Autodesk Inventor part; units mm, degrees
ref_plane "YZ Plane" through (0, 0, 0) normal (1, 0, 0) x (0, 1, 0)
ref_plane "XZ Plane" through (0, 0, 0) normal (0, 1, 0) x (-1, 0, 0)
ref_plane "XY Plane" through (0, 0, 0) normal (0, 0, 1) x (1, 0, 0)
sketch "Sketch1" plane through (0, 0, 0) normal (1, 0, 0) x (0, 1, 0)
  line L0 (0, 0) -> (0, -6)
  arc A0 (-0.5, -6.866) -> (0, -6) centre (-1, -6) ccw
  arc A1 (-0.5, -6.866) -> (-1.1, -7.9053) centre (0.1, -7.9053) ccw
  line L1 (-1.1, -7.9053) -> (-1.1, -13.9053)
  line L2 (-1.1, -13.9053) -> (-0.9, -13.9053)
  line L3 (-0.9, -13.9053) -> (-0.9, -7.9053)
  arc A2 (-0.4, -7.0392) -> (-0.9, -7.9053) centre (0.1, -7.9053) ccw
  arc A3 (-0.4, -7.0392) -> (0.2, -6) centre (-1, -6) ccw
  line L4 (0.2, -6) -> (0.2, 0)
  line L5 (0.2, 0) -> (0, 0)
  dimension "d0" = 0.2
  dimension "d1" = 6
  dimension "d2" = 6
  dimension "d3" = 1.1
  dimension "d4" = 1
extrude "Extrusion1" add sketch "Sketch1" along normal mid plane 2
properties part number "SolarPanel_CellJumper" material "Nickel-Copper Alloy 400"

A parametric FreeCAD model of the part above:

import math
import FreeCAD as App
import Part
import Sketcher
from FreeCAD import Vector
Q = App.Units.Quantity

doc = App.newDocument("Part")
body = doc.addObject("PartDesign::Body", "Body")

# Sketch on YZ plane
sketch1 = doc.addObject("Sketcher::SketchObject", "Sketch")
body.addObject(sketch1)
sketch1.AttachmentSupport = (doc.YZ_Plane, [""])
sketch1.MapMode = "FlatFace"
sketch1.addGeometry([
    Part.LineSegment(Vector(0.2, 0, 0), Vector(0, 0, 0)),  # 0
    Part.LineSegment(Vector(0, 0, 0), Vector(0, -6, 0)),  # 1
    Part.ArcOfCircle(Part.Circle(Vector(-1, -6, 0), Vector(0, 0, 1), 1), math.radians(-60), math.radians(0)),  # 2
    Part.ArcOfCircle(Part.Circle(Vector(0.1, -7.91, 0), Vector(0, 0, 1), 1.2), math.radians(120), math.radians(180)),  # 3
    Part.LineSegment(Vector(-1.1, -7.91, 0), Vector(-1.1, -13.91, 0)),  # 4
    Part.LineSegment(Vector(-1.1, -13.91, 0), Vector(-0.9, -13.91, 0)),  # 5
    Part.LineSegment(Vector(-0.9, -13.91, 0), Vector(-0.9, -7.91, 0)),  # 6
    Part.ArcOfCircle(Part.Circle(Vector(0.1, -7.91, 0), Vector(0, 0, 1), 1), math.radians(120), math.radians(180)),  # 7
    Part.ArcOfCircle(Part.Circle(Vector(-1, -6, 0), Vector(0, 0, 1), 1.2), math.radians(-60), math.radians(0)),  # 8
    Part.LineSegment(Vector(0.2, -6, 0), Vector(0.2, 0, 0)),  # 9
], False)
sketch1.addConstraint([
    Sketcher.Constraint("Coincident", 0, 2, 1, 1),
    Sketcher.Constraint("Tangent", 1, 2, 2, 2),
    Sketcher.Constraint("Tangent", 2, 1, 3, 1),
    Sketcher.Constraint("Tangent", 3, 2, 4, 1),
    Sketcher.Constraint("Coincident", 4, 2, 5, 1),
    Sketcher.Constraint("Coincident", 5, 2, 6, 1),
    Sketcher.Constraint("Tangent", 6, 2, 7, 2),
    Sketcher.Constraint("Tangent", 7, 1, 8, 1),
    Sketcher.Constraint("Tangent", 8, 2, 9, 1),
    Sketcher.Constraint("Coincident", 9, 2, 0, 1),
    Sketcher.Constraint("Horizontal", 0),
    Sketcher.Constraint("Vertical", 1),
    Sketcher.Constraint("Vertical", 4),
    Sketcher.Constraint("Horizontal", 5),
    Sketcher.Constraint("Vertical", 6),
    Sketcher.Constraint("Vertical", 9),
    Sketcher.Constraint("Coincident", 0, 2, -1, 1),
    Sketcher.Constraint("Coincident", 7, 3, 3, 3),
    Sketcher.Constraint("Coincident", 8, 3, 2, 3),
    Sketcher.Constraint("Equal", 2, 7),
    Sketcher.Constraint("Equal", 1, 4),
    Sketcher.Constraint("Radius", 2, Q("1 mm")),
    Sketcher.Constraint("DistanceY", 1, 2, 1, 1, Q("6 mm")),
    Sketcher.Constraint("DistanceX", 0, 2, 0, 1, Q("0.2 mm")),
    Sketcher.Constraint("DistanceX", 3, 2, -1, 1, Q("1.1 mm")),
])
pad1 = doc.addObject("PartDesign::Pad", "Pad")
body.addObject(pad1)
pad1.Profile = sketch1
pad1.Length = 2
pad1.Midplane = True

doc.recompute()
